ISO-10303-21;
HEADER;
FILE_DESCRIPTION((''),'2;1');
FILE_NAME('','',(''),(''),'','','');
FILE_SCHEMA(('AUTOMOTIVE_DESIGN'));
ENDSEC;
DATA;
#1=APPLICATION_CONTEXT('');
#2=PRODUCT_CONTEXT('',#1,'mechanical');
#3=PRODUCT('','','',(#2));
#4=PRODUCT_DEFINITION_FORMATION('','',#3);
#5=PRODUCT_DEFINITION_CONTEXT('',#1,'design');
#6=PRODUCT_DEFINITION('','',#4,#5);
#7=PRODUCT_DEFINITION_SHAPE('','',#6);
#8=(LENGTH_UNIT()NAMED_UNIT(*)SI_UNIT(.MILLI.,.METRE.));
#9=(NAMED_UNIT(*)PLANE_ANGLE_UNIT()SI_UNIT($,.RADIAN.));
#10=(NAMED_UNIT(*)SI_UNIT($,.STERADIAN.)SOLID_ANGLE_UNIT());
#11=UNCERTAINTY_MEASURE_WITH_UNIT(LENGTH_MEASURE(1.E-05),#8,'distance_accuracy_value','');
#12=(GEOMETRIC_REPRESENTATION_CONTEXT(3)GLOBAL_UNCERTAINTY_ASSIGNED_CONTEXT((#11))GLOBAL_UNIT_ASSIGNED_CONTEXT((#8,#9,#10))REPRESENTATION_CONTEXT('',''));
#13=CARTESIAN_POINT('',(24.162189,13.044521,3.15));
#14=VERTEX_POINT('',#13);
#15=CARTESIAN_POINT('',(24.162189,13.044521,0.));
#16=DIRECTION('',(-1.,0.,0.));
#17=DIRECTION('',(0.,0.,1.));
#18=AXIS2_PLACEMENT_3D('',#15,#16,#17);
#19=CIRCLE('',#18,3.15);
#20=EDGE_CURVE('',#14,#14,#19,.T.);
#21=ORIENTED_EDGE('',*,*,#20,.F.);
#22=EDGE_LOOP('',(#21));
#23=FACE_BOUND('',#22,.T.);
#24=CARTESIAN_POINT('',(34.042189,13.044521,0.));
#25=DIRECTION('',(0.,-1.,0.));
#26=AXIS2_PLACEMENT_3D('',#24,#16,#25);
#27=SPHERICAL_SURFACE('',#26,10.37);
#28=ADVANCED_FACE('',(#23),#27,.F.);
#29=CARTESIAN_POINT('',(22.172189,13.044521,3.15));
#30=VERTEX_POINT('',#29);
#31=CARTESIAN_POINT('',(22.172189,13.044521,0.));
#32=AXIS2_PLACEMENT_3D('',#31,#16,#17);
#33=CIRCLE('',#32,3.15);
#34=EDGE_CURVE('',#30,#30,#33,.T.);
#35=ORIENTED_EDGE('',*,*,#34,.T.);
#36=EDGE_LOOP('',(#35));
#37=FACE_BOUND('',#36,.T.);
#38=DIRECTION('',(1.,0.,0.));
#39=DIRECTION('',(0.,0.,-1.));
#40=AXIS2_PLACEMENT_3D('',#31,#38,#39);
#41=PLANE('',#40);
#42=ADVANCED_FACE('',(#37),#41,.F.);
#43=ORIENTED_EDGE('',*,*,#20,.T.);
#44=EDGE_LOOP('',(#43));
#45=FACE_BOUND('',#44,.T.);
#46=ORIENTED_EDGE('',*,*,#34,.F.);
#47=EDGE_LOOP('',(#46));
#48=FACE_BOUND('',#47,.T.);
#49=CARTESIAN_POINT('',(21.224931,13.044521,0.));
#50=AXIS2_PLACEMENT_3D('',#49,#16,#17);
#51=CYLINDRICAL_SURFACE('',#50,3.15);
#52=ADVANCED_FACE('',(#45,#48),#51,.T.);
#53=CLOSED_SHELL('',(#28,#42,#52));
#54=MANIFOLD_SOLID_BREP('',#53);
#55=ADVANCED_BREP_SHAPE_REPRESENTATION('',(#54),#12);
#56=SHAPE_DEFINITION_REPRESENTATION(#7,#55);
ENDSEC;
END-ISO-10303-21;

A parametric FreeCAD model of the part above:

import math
import FreeCAD as App
import Part
import Sketcher
from FreeCAD import Vector
Q = App.Units.Quantity

doc = App.newDocument("Part")
params = doc.addObject("Spreadsheet::Sheet", "Params")
for row, (alias, value) in enumerate([
    ("sketch1_radius", "10.37 mm"),
    ("sketch1_width", "1.5 mm"),
    ("sketch1_width2", "1.99 mm"),
    ("revolution_angle", "360 deg"),
], start=1):
    params.set(f"A{row}", alias)
    params.set(f"B{row}", "=" + value)
    params.setAlias(f"B{row}", alias)

body = doc.addObject("PartDesign::Body", "Body")

sketch1 = body.newObject("Sketcher::SketchObject", "Sketch")
sketch1.AttachmentSupport = (doc.getObject("XY_Plane"), [""])
sketch1.MapMode = "FlatFace"
sketch1.addGeometry([
    Part.LineSegment(Vector(22.2, 16.2, 0), Vector(22.2, 13, 0)),
    Part.LineSegment(Vector(22.2, 13, 0), Vector(23.7, 13, 0)),
    Part.ArcOfCircle(Part.Circle(Vector(34, 13, 0), Vector(0, 0, 1), 10.4), math.radians(162.32), math.radians(180)),
    Part.LineSegment(Vector(24.2, 16.2, 0), Vector(22.2, 16.2, 0)),
], False)
sketch1.addGeometry(Part.LineSegment(Vector(22.2, 13, 0), Vector(34, 13, 0)), True)
sketch1.addConstraint([
    Sketcher.Constraint("Coincident", 0, 2, 1, 1),
    Sketcher.Constraint("Coincident", 1, 2, 2, 2),
    Sketcher.Constraint("Coincident", 2, 1, 3, 1),
    Sketcher.Constraint("Coincident", 3, 2, 0, 1),
    Sketcher.Constraint("Vertical", 0),
    Sketcher.Constraint("Horizontal", 1),
    Sketcher.Constraint("Horizontal", 3),
    Sketcher.Constraint("Horizontal", 4),
    Sketcher.Constraint("Coincident", 4, 1, 0, 2),
    Sketcher.Constraint("Coincident", 4, 2, 2, 3),
    Sketcher.Constraint("Radius", 2, Q("10.37 mm")),
    Sketcher.Constraint("DistanceX", 1, 1, 1, 2, Q("1.5 mm")),
    Sketcher.Constraint("DistanceX", 3, 2, 3, 1, Q("1.99 mm")),
    Sketcher.Constraint("DistanceX", -1, 1, 2, 3, Q("34.042189 mm")),
    Sketcher.Constraint("DistanceY", -1, 1, 2, 3, Q("13.044521 mm")),
])
sketch1.setExpression("Constraints[10]", "Params.sketch1_radius")
sketch1.setExpression("Constraints[11]", "Params.sketch1_width")
sketch1.setExpression("Constraints[12]", "Params.sketch1_width2")
revolution = body.newObject("PartDesign::Revolution", "Revolution")
revolution.Profile = sketch1
revolution.ReferenceAxis = (sketch1, ["Axis0"])
revolution.setExpression("Angle", "Params.revolution_angle")

doc.recompute()
